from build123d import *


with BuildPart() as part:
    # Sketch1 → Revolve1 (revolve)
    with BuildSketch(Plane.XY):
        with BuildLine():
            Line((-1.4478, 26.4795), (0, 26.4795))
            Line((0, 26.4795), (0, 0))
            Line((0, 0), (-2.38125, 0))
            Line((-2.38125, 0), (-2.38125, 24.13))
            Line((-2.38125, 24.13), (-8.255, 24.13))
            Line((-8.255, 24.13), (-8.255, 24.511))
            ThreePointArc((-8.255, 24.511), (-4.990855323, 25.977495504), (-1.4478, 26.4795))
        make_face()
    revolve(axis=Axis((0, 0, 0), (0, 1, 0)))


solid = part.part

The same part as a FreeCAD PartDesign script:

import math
import FreeCAD as App
import Part
import Sketcher
from FreeCAD import Vector
Q = App.Units.Quantity

doc = App.newDocument("Part")
body = doc.addObject("PartDesign::Body", "Body")

# Sketch on XY plane
sketch1 = body.newObject("Sketcher::SketchObject", "Sketch")
sketch1.AttachmentSupport = (doc.getObject("XY_Plane"), [""])
sketch1.MapMode = "FlatFace"
sketch1.addGeometry(Part.LineSegment(Vector(0, 26.4795, 0), Vector(-1.4478, 26.4795, 0)), False)
sketch1.addGeometry(Part.ArcOfCircle(Part.Circle(Vector(-1.4478, 13.725382, 0), Vector(0, 0, 1), 12.754118), math.radians(90), math.radians(122.257529)), False)
sketch1.addGeometry(Part.LineSegment(Vector(-8.255, 24.511, 0), Vector(-8.255, 24.13, 0)), False)
sketch1.addGeometry(Part.LineSegment(Vector(-8.255, 24.13, 0), Vector(-2.38125, 24.13, 0)), False)
sketch1.addGeometry(Part.LineSegment(Vector(-2.38125, 24.13, 0), Vector(-2.38125, 0, 0)), False)
sketch1.addGeometry(Part.LineSegment(Vector(-2.38125, 0, 0), Vector(0, 0, 0)), False)
sketch1.addGeometry(Part.LineSegment(Vector(0, 0, 0), Vector(0, 26.4795, 0)), False)
sketch1.addConstraint(Sketcher.Constraint("Tangent", 0, 2, 1, 1))
sketch1.addConstraint(Sketcher.Constraint("Coincident", 1, 2, 2, 1))
sketch1.addConstraint(Sketcher.Constraint("Coincident", 2, 2, 3, 1))
sketch1.addConstraint(Sketcher.Constraint("Coincident", 3, 2, 4, 1))
sketch1.addConstraint(Sketcher.Constraint("Coincident", 4, 2, 5, 1))
sketch1.addConstraint(Sketcher.Constraint("Coincident", 5, 2, 6, 1))
sketch1.addConstraint(Sketcher.Constraint("Coincident", 6, 2, 0, 1))
sketch1.addConstraint(Sketcher.Constraint("Horizontal", 0))
sketch1.addConstraint(Sketcher.Constraint("Vertical", 2))
sketch1.addConstraint(Sketcher.Constraint("Horizontal", 3))
sketch1.addConstraint(Sketcher.Constraint("Vertical", 4))
sketch1.addConstraint(Sketcher.Constraint("Horizontal", 5))
sketch1.addConstraint(Sketcher.Constraint("Vertical", 6))
sketch1.addConstraint(Sketcher.Constraint("Coincident", 5, 2, -1, 1))
sketch1.addConstraint(Sketcher.Constraint("DistanceY", 4, 2, 4, 1, Q("0.95 in")))
sketch1.addConstraint(Sketcher.Constraint("DistanceX", 0, 2, 0, 1, Q("0.057 in")))
sketch1.addConstraint(Sketcher.Constraint("DistanceX", 5, 1, 5, 2, Q("0.09375 in")))
sketch1.addConstraint(Sketcher.Constraint("DistanceY", 2, 2, 2, 1, Q("0.015 in")))
sketch1.addConstraint(Sketcher.Constraint("DistanceY", 6, 1, 6, 2, Q("1.0425 in")))
sketch1.addConstraint(Sketcher.Constraint("DistanceX", 1, 2, -1, 1, Q("0.325 in")))
revolution = body.newObject("PartDesign::Revolution", "Revolution")
revolution.Profile = sketch1
revolution.ReferenceAxis = (sketch1, ["V_Axis"])
revolution.Angle = 360

doc.recompute()
